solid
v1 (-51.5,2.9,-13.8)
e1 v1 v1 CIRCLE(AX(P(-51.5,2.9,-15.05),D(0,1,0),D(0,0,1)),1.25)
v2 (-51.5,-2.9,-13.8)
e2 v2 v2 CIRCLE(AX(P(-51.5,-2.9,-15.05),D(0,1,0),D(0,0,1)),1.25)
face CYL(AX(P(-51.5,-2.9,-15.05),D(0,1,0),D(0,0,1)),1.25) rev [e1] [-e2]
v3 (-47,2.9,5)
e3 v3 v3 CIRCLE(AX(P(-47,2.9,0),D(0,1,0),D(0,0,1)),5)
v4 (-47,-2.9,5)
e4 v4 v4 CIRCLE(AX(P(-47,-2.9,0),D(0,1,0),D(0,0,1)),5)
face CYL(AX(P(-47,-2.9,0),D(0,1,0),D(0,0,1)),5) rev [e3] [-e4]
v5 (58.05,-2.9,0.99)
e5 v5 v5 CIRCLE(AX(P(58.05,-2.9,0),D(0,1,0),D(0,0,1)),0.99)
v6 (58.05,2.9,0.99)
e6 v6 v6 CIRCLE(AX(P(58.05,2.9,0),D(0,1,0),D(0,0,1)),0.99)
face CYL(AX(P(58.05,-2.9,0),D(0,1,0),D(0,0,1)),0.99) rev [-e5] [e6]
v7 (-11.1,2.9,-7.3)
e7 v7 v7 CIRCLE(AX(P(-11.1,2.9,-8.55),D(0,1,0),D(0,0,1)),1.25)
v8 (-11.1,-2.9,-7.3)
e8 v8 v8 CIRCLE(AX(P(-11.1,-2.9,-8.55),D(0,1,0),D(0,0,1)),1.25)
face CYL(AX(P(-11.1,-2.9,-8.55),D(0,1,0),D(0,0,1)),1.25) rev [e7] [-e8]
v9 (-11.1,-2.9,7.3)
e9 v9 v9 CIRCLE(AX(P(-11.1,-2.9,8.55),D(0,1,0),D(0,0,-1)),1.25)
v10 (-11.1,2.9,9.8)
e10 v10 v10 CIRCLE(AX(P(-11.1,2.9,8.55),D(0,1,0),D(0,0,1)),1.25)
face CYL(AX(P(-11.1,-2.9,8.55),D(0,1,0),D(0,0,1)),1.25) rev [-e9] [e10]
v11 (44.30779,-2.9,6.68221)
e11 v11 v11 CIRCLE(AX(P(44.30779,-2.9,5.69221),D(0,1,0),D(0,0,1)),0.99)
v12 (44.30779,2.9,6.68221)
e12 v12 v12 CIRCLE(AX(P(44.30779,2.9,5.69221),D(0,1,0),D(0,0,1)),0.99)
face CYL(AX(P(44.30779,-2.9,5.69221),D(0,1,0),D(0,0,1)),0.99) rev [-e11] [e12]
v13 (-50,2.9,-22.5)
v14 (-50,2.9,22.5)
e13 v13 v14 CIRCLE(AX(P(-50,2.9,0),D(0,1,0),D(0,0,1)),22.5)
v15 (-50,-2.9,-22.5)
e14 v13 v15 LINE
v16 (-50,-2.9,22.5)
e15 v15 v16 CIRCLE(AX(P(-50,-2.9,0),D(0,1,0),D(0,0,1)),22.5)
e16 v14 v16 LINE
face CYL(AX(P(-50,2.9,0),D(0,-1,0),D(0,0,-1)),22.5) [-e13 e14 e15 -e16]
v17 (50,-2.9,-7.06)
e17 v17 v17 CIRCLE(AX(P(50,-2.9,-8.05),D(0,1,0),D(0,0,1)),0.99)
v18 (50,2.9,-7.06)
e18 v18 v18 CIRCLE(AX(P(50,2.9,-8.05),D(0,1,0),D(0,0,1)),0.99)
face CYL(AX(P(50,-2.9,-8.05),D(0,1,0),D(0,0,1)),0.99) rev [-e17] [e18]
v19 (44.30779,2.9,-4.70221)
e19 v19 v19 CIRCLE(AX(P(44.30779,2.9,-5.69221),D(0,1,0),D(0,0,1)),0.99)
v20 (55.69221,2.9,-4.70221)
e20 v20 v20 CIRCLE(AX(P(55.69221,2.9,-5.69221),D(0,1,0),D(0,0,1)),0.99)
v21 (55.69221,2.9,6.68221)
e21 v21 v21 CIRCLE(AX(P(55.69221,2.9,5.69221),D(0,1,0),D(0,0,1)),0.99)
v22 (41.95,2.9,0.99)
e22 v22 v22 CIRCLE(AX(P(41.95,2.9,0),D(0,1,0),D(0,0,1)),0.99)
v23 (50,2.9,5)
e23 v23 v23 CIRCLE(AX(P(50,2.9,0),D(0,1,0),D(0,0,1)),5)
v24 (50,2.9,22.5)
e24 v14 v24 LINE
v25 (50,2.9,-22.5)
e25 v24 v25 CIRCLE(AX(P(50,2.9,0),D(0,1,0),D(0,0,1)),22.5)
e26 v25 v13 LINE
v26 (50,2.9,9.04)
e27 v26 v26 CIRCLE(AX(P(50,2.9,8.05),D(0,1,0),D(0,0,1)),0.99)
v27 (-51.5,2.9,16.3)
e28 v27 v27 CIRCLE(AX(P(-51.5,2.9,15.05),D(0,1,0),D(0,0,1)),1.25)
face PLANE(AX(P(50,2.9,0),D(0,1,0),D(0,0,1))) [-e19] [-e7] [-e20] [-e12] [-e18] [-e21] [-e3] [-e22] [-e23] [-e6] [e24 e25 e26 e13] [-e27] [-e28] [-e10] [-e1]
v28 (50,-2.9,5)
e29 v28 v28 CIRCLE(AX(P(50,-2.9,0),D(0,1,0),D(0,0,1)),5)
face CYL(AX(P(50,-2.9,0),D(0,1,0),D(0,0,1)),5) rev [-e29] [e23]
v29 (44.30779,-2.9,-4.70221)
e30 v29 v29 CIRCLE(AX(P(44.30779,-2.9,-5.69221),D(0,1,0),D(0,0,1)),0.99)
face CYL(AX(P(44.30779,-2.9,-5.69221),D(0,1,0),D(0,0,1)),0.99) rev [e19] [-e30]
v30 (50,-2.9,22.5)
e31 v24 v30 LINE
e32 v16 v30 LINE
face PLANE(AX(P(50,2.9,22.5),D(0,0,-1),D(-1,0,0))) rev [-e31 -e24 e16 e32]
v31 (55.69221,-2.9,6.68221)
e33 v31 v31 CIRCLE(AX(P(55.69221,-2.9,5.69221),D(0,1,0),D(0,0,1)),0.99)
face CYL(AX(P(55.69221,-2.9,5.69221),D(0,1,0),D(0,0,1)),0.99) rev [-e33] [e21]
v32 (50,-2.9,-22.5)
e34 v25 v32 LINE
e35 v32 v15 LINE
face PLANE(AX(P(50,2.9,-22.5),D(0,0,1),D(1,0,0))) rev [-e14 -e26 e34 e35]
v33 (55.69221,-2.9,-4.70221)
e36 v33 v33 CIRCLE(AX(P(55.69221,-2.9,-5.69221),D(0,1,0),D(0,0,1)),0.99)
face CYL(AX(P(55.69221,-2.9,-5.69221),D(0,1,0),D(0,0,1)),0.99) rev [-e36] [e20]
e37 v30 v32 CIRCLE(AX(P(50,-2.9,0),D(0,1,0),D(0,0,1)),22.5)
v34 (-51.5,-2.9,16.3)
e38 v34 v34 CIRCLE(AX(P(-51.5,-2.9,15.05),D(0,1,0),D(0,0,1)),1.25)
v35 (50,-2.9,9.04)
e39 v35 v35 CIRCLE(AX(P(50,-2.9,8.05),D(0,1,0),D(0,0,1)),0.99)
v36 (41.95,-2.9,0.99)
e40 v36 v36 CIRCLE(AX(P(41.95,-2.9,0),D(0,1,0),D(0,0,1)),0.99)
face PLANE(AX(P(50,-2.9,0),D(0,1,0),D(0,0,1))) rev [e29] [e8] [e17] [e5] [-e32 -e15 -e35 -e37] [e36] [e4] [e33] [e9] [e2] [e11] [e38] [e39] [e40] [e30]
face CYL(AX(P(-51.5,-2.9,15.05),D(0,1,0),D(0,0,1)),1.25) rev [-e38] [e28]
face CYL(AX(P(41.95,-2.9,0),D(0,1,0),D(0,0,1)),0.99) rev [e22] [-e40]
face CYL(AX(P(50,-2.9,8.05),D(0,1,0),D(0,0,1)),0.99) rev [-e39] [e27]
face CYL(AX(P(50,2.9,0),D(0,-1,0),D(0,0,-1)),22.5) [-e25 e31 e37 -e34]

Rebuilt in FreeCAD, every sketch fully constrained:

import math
import FreeCAD as App
import Part
import Sketcher

V = App.Vector

doc = App.newDocument("Part")
body = doc.addObject("PartDesign::Body", "Body")

sketch1 = body.newObject("Sketcher::SketchObject", "Sketch")
sketch1.AttachmentSupport = (doc.getObject("XZ_Plane"), [""])
sketch1.MapMode = "FlatFace"
sketch1.addGeometry([
    Part.LineSegment(V(-50, 22, 0), V(50, 22, 0)),
    Part.ArcOfCircle(Part.Circle(V(50, 0, 0), V(0, 0, 1), 22), math.radians(-90), math.radians(90)),
    Part.LineSegment(V(50, -22, 0), V(-50, -22, 0)),
    Part.ArcOfCircle(Part.Circle(V(-50, 0, 0), V(0, 0, 1), 22), math.radians(90), math.radians(270)),
], False)
sketch1.addConstraint([
    Sketcher.Constraint("Tangent", 0, 2, 1, 2),
    Sketcher.Constraint("Tangent", 1, 1, 2, 1),
    Sketcher.Constraint("Tangent", 2, 2, 3, 2),
    Sketcher.Constraint("Tangent", 3, 1, 0, 1),
    Sketcher.Constraint("Horizontal", 0),
    Sketcher.Constraint("Horizontal", 2),
    Sketcher.Constraint("Symmetric", 1, 3, 3, 3, -1, 1),
    Sketcher.Constraint("Radius", 1, 22.5),
    Sketcher.Constraint("DistanceX", 0, 1, 0, 2, 100.0),
])
pad1 = body.newObject("PartDesign::Pad", "Pad")
pad1.Profile = sketch1
pad1.Length = 5.8
pad1.Midplane = True

sketch2 = body.newObject("Sketcher::SketchObject", "Sketch001")
sketch2.AttachmentSupport = (doc.getObject("XZ_Plane"), [""])
sketch2.MapMode = "FlatFace"
sketch2.AttachmentOffset = App.Placement(V(0, 0, -2.9), App.Rotation())
sketch2.addGeometry([
    Part.Circle(V(42, 0, 0), V(0, 0, 1), 1),
    Part.Circle(V(44.3, -5.7, 0), V(0, 0, 1), 1),
    Part.Circle(V(50, -8.1, 0), V(0, 0, 1), 1),
    Part.Circle(V(55.7, -5.7, 0), V(0, 0, 1), 1),
    Part.Circle(V(58, 0, 0), V(0, 0, 1), 1),
    Part.Circle(V(55.7, 5.7, 0), V(0, 0, 1), 1),
    Part.Circle(V(50, 8.1, 0), V(0, 0, 1), 1),
    Part.Circle(V(44.3, 5.7, 0), V(0, 0, 1), 1),
], False)
sketch2.addConstraint([
    Sketcher.Constraint("Equal", 0, 1),
    Sketcher.Constraint("Equal", 1, 2),
    Sketcher.Constraint("Equal", 2, 3),
    Sketcher.Constraint("Equal", 3, 4),
    Sketcher.Constraint("Equal", 4, 5),
    Sketcher.Constraint("Equal", 5, 6),
    Sketcher.Constraint("Equal", 6, 7),
    Sketcher.Constraint("Symmetric", 3, 3, 5, 3, -1),
    Sketcher.Constraint("Symmetric", 2, 3, 6, 3, -1),
    Sketcher.Constraint("Symmetric", 1, 3, 7, 3, -1),
    Sketcher.Constraint("PointOnObject", 0, 3, -1),
    Sketcher.Constraint("PointOnObject", 4, 3, -1),
    Sketcher.Constraint("Horizontal", 1, 3, 3, 3),
    Sketcher.Constraint("Diameter", 0, 1.98),
    Sketcher.Constraint("DistanceX", -1, 1, 2, 3, 50.0),
    Sketcher.Constraint("DistanceX", 0, 3, 4, 3, 16.1),
    Sketcher.Constraint("DistanceX", -1, 1, 0, 3, 41.95),
    Sketcher.Constraint("DistanceY", 2, 3, -1, 1, 8.05),
    Sketcher.Constraint("DistanceX", -1, 1, 1, 3, 44.30779),
    Sketcher.Constraint("DistanceY", 1, 3, -1, 1, 5.69221),
    Sketcher.Constraint("DistanceX", -1, 1, 3, 3, 55.69221),
])
pocket1 = body.newObject("PartDesign::Pocket", "Pocket")
pocket1.Profile = sketch2
pocket1.Type = "ThroughAll"
pocket1.Midplane = True

sketch3 = body.newObject("Sketcher::SketchObject", "Sketch002")
sketch3.AttachmentSupport = (doc.getObject("XZ_Plane"), [""])
sketch3.MapMode = "FlatFace"
sketch3.AttachmentOffset = App.Placement(V(0, 0, -2.9), App.Rotation())
sketch3.addGeometry(Part.Circle(V(50, 0, 0), V(0, 0, 1), 5), False)
sketch3.addConstraint([
    Sketcher.Constraint("PointOnObject", 0, 3, -1),
    Sketcher.Constraint("Diameter", 0, 10.0),
    Sketcher.Constraint("DistanceX", -1, 1, 0, 3, 50.0),
])
pocket2 = body.newObject("PartDesign::Pocket", "Pocket001")
pocket2.Profile = sketch3
pocket2.Type = "ThroughAll"
pocket2.Reversed = True

sketch4 = body.newObject("Sketcher::SketchObject", "Sketch003")
sketch4.AttachmentSupport = (doc.getObject("XZ_Plane"), [""])
sketch4.MapMode = "FlatFace"
sketch4.AttachmentOffset = App.Placement(V(0, 0, -2.9), App.Rotation())
sketch4.addGeometry([
    Part.Circle(V(-51.5, 15.1, 0), V(0, 0, 1), 1.2),
    Part.Circle(V(-51.5, -15.1, 0), V(0, 0, 1), 1.2),
    Part.Circle(V(-11.1, -8.6, 0), V(0, 0, 1), 1.2),
    Part.Circle(V(-11.1, 8.6, 0), V(0, 0, 1), 1.2),
    Part.Circle(V(-47, 0, 0), V(0, 0, 1), 5),
], False)
sketch4.addConstraint([
    Sketcher.Constraint("Equal", 0, 1),
    Sketcher.Constraint("Equal", 1, 2),
    Sketcher.Constraint("Equal", 2, 3),
    Sketcher.Constraint("Symmetric", 0, 3, 1, 3, -1),
    Sketcher.Constraint("Symmetric", 2, 3, 3, 3, -1),
    Sketcher.Constraint("PointOnObject", 4, 3, -1),
    Sketcher.Constraint("Diameter", 4, 10.0),
    Sketcher.Constraint("Diameter", 0, 2.5),
    Sketcher.Constraint("DistanceX", 4, 3, -1, 1, 47.0),
    Sketcher.Constraint("DistanceX", 0, 3, -1, 1, 51.5),
    Sketcher.Constraint("DistanceX", 2, 3, -1, 1, 11.1),
    Sketcher.Constraint("DistanceY", 1, 3, 0, 3, 30.1),
    Sketcher.Constraint("DistanceY", 1, 3, 2, 3, 6.5),
])
pocket3 = body.newObject("PartDesign::Pocket", "Pocket002")
pocket3.Profile = sketch4
pocket3.Type = "ThroughAll"
pocket3.Midplane = True

doc.recompute()
